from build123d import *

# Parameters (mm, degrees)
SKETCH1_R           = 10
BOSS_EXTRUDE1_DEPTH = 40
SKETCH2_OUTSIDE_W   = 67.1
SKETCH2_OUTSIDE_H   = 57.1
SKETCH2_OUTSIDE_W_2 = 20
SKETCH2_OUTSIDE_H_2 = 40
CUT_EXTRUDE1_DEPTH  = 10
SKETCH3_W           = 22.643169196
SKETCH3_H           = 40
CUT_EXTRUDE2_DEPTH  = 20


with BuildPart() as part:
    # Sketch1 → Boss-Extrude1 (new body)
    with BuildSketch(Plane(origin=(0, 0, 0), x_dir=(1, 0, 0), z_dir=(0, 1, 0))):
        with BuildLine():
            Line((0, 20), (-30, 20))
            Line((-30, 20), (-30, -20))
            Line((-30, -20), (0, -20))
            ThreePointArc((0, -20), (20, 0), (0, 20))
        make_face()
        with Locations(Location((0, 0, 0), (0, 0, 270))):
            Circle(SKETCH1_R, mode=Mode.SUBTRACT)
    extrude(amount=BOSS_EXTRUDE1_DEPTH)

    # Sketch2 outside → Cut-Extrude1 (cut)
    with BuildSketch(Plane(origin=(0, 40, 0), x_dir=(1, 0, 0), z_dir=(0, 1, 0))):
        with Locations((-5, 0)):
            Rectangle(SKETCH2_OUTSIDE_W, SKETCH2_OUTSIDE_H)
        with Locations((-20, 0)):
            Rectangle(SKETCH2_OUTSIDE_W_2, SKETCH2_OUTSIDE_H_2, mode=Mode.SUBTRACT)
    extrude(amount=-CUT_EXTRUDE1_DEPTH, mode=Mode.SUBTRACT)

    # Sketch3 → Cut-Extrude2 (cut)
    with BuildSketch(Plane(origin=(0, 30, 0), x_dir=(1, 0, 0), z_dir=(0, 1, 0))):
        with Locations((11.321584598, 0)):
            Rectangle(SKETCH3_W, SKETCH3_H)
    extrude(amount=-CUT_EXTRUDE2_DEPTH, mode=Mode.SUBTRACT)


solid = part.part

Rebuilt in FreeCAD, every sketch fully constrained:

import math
import FreeCAD as App
import Part
import Sketcher

V = App.Vector
Q = App.Units.Quantity

doc = App.newDocument("Part")
body = doc.addObject("PartDesign::Body", "Body")

# Sketch on XZ plane
sketch1 = body.newObject("Sketcher::SketchObject", "Sketch")
sketch1.AttachmentSupport = (doc.getObject("XZ_Plane"), [""])
sketch1.MapMode = "FlatFace"
sketch1.addGeometry(Part.LineSegment(V(0, -20, 0), V(-30, -20, 0)), False)
sketch1.addGeometry(Part.LineSegment(V(-30, -20, 0), V(-30, 20, 0)), False)
sketch1.addGeometry(Part.LineSegment(V(-30, 20, 0), V(0, 20, 0)), False)
sketch1.addGeometry(Part.ArcOfCircle(Part.Circle(V(0, 0, 0), V(0, 0, 1), 20), math.radians(-90), math.radians(90)), False)
sketch1.addGeometry(Part.Circle(V(0, 0, 0), V(0, 0, 1), 10), False)
sketch1.addConstraint(Sketcher.Constraint("Coincident", 0, 2, 1, 1))
sketch1.addConstraint(Sketcher.Constraint("Coincident", 1, 2, 2, 1))
sketch1.addConstraint(Sketcher.Constraint("Tangent", 2, 2, 3, 2))
sketch1.addConstraint(Sketcher.Constraint("Tangent", 3, 1, 0, 1))
sketch1.addConstraint(Sketcher.Constraint("Horizontal", 0))
sketch1.addConstraint(Sketcher.Constraint("Vertical", 1))
sketch1.addConstraint(Sketcher.Constraint("Horizontal", 2))
sketch1.addConstraint(Sketcher.Constraint("Coincident", 3, 3, -1, 1))
sketch1.addConstraint(Sketcher.Constraint("Coincident", 4, 3, -1, 1))
sketch1.addConstraint(Sketcher.Constraint("Diameter", 4, Q("20 mm")))
sketch1.addConstraint(Sketcher.Constraint("Radius", 3, Q("20 mm")))
sketch1.addConstraint(Sketcher.Constraint("DistanceX", 0, 2, 0, 1, Q("30 mm")))
pad1 = body.newObject("PartDesign::Pad", "Pad")
pad1.Profile = sketch1
pad1.Length = 40
pad1.Reversed = True

# Sketch on XZ plane
sketch2 = body.newObject("Sketcher::SketchObject", "Sketch001")
sketch2.AttachmentSupport = (doc.getObject("XZ_Plane"), [""])
sketch2.MapMode = "FlatFace"
sketch2.AttachmentOffset = App.Placement(V(0, 0, -40), App.Rotation())
sketch2.addGeometry(Part.LineSegment(V(-39, -29, 0), V(-39, 29, 0)), False)
sketch2.addGeometry(Part.LineSegment(V(-39, 29, 0), V(29, 29, 0)), False)
sketch2.addGeometry(Part.LineSegment(V(29, 29, 0), V(29, -29, 0)), False)
sketch2.addGeometry(Part.LineSegment(V(29, -29, 0), V(-39, -29, 0)), False)
sketch2.addGeometry(Part.LineSegment(V(-10, 20, 0), V(-30, 20, 0)), False)
sketch2.addGeometry(Part.LineSegment(V(-30, 20, 0), V(-30, -20, 0)), False)
sketch2.addGeometry(Part.LineSegment(V(-30, -20, 0), V(-10, -20, 0)), False)
sketch2.addGeometry(Part.LineSegment(V(-10, -20, 0), V(-10, 20, 0)), False)
sketch2.addConstraint(Sketcher.Constraint("Coincident", 0, 2, 1, 1))
sketch2.addConstraint(Sketcher.Constraint("Coincident", 1, 2, 2, 1))
sketch2.addConstraint(Sketcher.Constraint("Coincident", 2, 2, 3, 1))
sketch2.addConstraint(Sketcher.Constraint("Coincident", 3, 2, 0, 1))
sketch2.addConstraint(Sketcher.Constraint("Coincident", 4, 2, 5, 1))
sketch2.addConstraint(Sketcher.Constraint("Coincident", 5, 2, 6, 1))
sketch2.addConstraint(Sketcher.Constraint("Coincident", 6, 2, 7, 1))
sketch2.addConstraint(Sketcher.Constraint("Coincident", 7, 2, 4, 1))
sketch2.addConstraint(Sketcher.Constraint("Vertical", 0))
sketch2.addConstraint(Sketcher.Constraint("Horizontal", 1))
sketch2.addConstraint(Sketcher.Constraint("Vertical", 2))
sketch2.addConstraint(Sketcher.Constraint("Horizontal", 3))
sketch2.addConstraint(Sketcher.Constraint("Horizontal", 4))
sketch2.addConstraint(Sketcher.Constraint("Vertical", 5))
sketch2.addConstraint(Sketcher.Constraint("Horizontal", 6))
sketch2.addConstraint(Sketcher.Constraint("Vertical", 7))
sketch2.addConstraint(Sketcher.Constraint("DistanceX", 4, 2, 4, 1, Q("20 mm")))
sketch2.addConstraint(Sketcher.Constraint("DistanceY", 5, 2, 5, 1, Q("40 mm")))
sketch2.addConstraint(Sketcher.Constraint("DistanceX", 1, 1, 1, 2, Q("67.1 mm")))
sketch2.addConstraint(Sketcher.Constraint("DistanceY", 0, 1, 0, 2, Q("57.1 mm")))
sketch2.addConstraint(Sketcher.Constraint("DistanceX", 4, 2, -1, 1, Q("30 mm")))
sketch2.addConstraint(Sketcher.Constraint("DistanceY", -1, 1, 4, 2, Q("20 mm")))
sketch2.addConstraint(Sketcher.Constraint("DistanceX", 0, 2, -1, 1, Q("38.55 mm")))
sketch2.addConstraint(Sketcher.Constraint("DistanceY", -1, 1, 0, 2, Q("28.55 mm")))
pocket1 = body.newObject("PartDesign::Pocket", "Pocket")
pocket1.Profile = sketch2
pocket1.Length = 10
pocket1.Reversed = True

# Sketch on XZ plane
sketch3 = body.newObject("Sketcher::SketchObject", "Sketch002")
sketch3.AttachmentSupport = (doc.getObject("XZ_Plane"), [""])
sketch3.MapMode = "FlatFace"
sketch3.AttachmentOffset = App.Placement(V(0, 0, -30), App.Rotation())
sketch3.addGeometry(Part.LineSegment(V(0, -20, 0), V(0, 20, 0)), False)
sketch3.addGeometry(Part.LineSegment(V(0, 20, 0), V(23, 20, 0)), False)
sketch3.addGeometry(Part.LineSegment(V(23, 20, 0), V(23, -20, 0)), False)
sketch3.addGeometry(Part.LineSegment(V(23, -20, 0), V(0, -20, 0)), False)
sketch3.addConstraint(Sketcher.Constraint("Coincident", 0, 2, 1, 1))
sketch3.addConstraint(Sketcher.Constraint("Coincident", 1, 2, 2, 1))
sketch3.addConstraint(Sketcher.Constraint("Coincident", 2, 2, 3, 1))
sketch3.addConstraint(Sketcher.Constraint("Coincident", 3, 2, 0, 1))
sketch3.addConstraint(Sketcher.Constraint("Vertical", 0))
sketch3.addConstraint(Sketcher.Constraint("Horizontal", 1))
sketch3.addConstraint(Sketcher.Constraint("Vertical", 2))
sketch3.addConstraint(Sketcher.Constraint("Horizontal", 3))
sketch3.addConstraint(Sketcher.Constraint("Symmetric", 0, 2, 3, 2, -1, 1))
sketch3.addConstraint(Sketcher.Constraint("DistanceY", 0, 1, 0, 2, Q("40 mm")))
sketch3.addConstraint(Sketcher.Constraint("DistanceX", 1, 1, 1, 2, Q("22.643169 mm")))
pocket2 = body.newObject("PartDesign::Pocket", "Pocket001")
pocket2.Profile = sketch3
pocket2.Length = 20
pocket2.Reversed = True

doc.recompute()
